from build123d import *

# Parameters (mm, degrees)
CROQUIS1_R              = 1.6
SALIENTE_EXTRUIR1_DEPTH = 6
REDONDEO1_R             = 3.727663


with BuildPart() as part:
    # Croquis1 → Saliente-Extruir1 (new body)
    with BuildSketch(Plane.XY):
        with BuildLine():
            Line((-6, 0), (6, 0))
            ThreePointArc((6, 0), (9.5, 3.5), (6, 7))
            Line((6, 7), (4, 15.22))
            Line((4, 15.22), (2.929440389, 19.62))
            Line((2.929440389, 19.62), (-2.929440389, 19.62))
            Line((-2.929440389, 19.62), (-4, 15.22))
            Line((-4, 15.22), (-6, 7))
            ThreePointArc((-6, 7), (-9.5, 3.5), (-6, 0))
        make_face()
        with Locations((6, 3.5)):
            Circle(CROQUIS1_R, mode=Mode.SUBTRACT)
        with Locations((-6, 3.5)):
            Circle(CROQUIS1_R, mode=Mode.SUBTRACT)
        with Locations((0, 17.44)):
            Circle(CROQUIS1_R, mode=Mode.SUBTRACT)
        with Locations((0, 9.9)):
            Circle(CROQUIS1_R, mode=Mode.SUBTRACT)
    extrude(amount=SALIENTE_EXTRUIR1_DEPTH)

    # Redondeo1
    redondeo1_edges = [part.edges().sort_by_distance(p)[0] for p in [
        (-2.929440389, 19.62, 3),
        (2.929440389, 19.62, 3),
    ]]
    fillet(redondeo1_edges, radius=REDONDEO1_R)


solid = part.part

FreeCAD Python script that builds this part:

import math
import FreeCAD as App
import Part
import Sketcher


def edges_at(feature, points):
    """Names of the edges that pass closest to the given points."""
    edges = feature.Shape.Edges
    near = lambda p: min(range(len(edges)), key=lambda i: edges[i].distToShape(Part.Vertex(*p))[0])
    return sorted({f"Edge{near(p) + 1}" for p in points})

doc = App.newDocument("Part")
body = doc.addObject("PartDesign::Body", "Body")

sketch1 = body.newObject("Sketcher::SketchObject", "Sketch")
sketch1.AttachmentSupport = (doc.getObject("XY_Plane"), [""])
sketch1.MapMode = "FlatFace"
sketch1.addGeometry([
    Part.LineSegment(App.Vector(-6, 0, 0), App.Vector(6, 0, 0)),
    Part.ArcOfCircle(Part.Circle(App.Vector(6, 3.5, 0), App.Vector(0, 0, 1), 3.5), math.radians(-90), math.radians(90)),
    Part.LineSegment(App.Vector(6, 7, 0), App.Vector(4, 15.2, 0)),
    Part.LineSegment(App.Vector(4, 15.2, 0), App.Vector(2.9, 19.6, 0)),
    Part.LineSegment(App.Vector(2.9, 19.6, 0), App.Vector(-2.9, 19.6, 0)),
    Part.LineSegment(App.Vector(-2.9, 19.6, 0), App.Vector(-4, 15.2, 0)),
    Part.LineSegment(App.Vector(-4, 15.2, 0), App.Vector(-6, 7, 0)),
    Part.ArcOfCircle(Part.Circle(App.Vector(-6, 3.5, 0), App.Vector(0, 0, 1), 3.5), math.radians(90), math.radians(270)),
    Part.Circle(App.Vector(-6, 3.5, 0), App.Vector(0, 0, 1), 1.6),
    Part.Circle(App.Vector(0, 9.9, 0), App.Vector(0, 0, 1), 1.6),
    Part.Circle(App.Vector(6, 3.5, 0), App.Vector(0, 0, 1), 1.6),
    Part.Circle(App.Vector(0, 17.4, 0), App.Vector(0, 0, 1), 1.6),
], False)
sketch1.addConstraint([
    Sketcher.Constraint("Tangent", 0, 2, 1, 1),
    Sketcher.Constraint("Coincident", 1, 2, 2, 1),
    Sketcher.Constraint("Coincident", 2, 2, 3, 1),
    Sketcher.Constraint("Coincident", 3, 2, 4, 1),
    Sketcher.Constraint("Coincident", 4, 2, 5, 1),
    Sketcher.Constraint("Coincident", 5, 2, 6, 1),
    Sketcher.Constraint("Coincident", 6, 2, 7, 1),
    Sketcher.Constraint("Tangent", 7, 2, 0, 1),
    Sketcher.Constraint("Horizontal", 0),
    Sketcher.Constraint("Horizontal", 4),
    Sketcher.Constraint("Coincident", 8, 3, 7, 3),
    Sketcher.Constraint("Coincident", 10, 3, 1, 3),
    Sketcher.Constraint("Equal", 1, 7),
    Sketcher.Constraint("Equal", 8, 9),
    Sketcher.Constraint("Equal", 9, 10),
    Sketcher.Constraint("Equal", 10, 11),
    Sketcher.Constraint("Symmetric", 0, 2, 7, 2, -1, 1),
    Sketcher.Constraint("Symmetric", 2, 2, 5, 2, -2),
    Sketcher.Constraint("PointOnObject", 9, 3, -2),
    Sketcher.Constraint("PointOnObject", 11, 3, -2),
    Sketcher.Constraint("Parallel", 2, 3),
    Sketcher.Constraint("Parallel", 5, 6),
    Sketcher.Constraint("Vertical", 0, 2, 1, 2),
    Sketcher.Constraint("Vertical", 8, 3, 6, 2),
    Sketcher.Constraint("Diameter", 8, 3.2),
    Sketcher.Constraint("Radius", 1, 3.5),
    Sketcher.Constraint("DistanceX", 0, 1, 0, 2, 12.0),
    Sketcher.Constraint("DistanceX", -1, 1, 2, 2, 4.0),
    Sketcher.Constraint("DistanceY", -1, 1, 9, 3, 9.9),
    Sketcher.Constraint("DistanceY", 2, 2, 3, 2, 4.4),
    Sketcher.Constraint("DistanceY", -1, 1, 11, 3, 17.44),
    Sketcher.Constraint("DistanceY", -1, 1, 2, 2, 15.22),
])
pad1 = body.newObject("PartDesign::Pad", "Pad")
pad1.Profile = sketch1
pad1.Length = 6
doc.recompute()

fillet = body.newObject("PartDesign::Fillet", "Fillet")
fillet.Base = (pad1, edges_at(pad1, [(-2.929, 19.62, 3), (2.929, 19.62, 3)]))
fillet.Radius = 3.727663

doc.recompute()
